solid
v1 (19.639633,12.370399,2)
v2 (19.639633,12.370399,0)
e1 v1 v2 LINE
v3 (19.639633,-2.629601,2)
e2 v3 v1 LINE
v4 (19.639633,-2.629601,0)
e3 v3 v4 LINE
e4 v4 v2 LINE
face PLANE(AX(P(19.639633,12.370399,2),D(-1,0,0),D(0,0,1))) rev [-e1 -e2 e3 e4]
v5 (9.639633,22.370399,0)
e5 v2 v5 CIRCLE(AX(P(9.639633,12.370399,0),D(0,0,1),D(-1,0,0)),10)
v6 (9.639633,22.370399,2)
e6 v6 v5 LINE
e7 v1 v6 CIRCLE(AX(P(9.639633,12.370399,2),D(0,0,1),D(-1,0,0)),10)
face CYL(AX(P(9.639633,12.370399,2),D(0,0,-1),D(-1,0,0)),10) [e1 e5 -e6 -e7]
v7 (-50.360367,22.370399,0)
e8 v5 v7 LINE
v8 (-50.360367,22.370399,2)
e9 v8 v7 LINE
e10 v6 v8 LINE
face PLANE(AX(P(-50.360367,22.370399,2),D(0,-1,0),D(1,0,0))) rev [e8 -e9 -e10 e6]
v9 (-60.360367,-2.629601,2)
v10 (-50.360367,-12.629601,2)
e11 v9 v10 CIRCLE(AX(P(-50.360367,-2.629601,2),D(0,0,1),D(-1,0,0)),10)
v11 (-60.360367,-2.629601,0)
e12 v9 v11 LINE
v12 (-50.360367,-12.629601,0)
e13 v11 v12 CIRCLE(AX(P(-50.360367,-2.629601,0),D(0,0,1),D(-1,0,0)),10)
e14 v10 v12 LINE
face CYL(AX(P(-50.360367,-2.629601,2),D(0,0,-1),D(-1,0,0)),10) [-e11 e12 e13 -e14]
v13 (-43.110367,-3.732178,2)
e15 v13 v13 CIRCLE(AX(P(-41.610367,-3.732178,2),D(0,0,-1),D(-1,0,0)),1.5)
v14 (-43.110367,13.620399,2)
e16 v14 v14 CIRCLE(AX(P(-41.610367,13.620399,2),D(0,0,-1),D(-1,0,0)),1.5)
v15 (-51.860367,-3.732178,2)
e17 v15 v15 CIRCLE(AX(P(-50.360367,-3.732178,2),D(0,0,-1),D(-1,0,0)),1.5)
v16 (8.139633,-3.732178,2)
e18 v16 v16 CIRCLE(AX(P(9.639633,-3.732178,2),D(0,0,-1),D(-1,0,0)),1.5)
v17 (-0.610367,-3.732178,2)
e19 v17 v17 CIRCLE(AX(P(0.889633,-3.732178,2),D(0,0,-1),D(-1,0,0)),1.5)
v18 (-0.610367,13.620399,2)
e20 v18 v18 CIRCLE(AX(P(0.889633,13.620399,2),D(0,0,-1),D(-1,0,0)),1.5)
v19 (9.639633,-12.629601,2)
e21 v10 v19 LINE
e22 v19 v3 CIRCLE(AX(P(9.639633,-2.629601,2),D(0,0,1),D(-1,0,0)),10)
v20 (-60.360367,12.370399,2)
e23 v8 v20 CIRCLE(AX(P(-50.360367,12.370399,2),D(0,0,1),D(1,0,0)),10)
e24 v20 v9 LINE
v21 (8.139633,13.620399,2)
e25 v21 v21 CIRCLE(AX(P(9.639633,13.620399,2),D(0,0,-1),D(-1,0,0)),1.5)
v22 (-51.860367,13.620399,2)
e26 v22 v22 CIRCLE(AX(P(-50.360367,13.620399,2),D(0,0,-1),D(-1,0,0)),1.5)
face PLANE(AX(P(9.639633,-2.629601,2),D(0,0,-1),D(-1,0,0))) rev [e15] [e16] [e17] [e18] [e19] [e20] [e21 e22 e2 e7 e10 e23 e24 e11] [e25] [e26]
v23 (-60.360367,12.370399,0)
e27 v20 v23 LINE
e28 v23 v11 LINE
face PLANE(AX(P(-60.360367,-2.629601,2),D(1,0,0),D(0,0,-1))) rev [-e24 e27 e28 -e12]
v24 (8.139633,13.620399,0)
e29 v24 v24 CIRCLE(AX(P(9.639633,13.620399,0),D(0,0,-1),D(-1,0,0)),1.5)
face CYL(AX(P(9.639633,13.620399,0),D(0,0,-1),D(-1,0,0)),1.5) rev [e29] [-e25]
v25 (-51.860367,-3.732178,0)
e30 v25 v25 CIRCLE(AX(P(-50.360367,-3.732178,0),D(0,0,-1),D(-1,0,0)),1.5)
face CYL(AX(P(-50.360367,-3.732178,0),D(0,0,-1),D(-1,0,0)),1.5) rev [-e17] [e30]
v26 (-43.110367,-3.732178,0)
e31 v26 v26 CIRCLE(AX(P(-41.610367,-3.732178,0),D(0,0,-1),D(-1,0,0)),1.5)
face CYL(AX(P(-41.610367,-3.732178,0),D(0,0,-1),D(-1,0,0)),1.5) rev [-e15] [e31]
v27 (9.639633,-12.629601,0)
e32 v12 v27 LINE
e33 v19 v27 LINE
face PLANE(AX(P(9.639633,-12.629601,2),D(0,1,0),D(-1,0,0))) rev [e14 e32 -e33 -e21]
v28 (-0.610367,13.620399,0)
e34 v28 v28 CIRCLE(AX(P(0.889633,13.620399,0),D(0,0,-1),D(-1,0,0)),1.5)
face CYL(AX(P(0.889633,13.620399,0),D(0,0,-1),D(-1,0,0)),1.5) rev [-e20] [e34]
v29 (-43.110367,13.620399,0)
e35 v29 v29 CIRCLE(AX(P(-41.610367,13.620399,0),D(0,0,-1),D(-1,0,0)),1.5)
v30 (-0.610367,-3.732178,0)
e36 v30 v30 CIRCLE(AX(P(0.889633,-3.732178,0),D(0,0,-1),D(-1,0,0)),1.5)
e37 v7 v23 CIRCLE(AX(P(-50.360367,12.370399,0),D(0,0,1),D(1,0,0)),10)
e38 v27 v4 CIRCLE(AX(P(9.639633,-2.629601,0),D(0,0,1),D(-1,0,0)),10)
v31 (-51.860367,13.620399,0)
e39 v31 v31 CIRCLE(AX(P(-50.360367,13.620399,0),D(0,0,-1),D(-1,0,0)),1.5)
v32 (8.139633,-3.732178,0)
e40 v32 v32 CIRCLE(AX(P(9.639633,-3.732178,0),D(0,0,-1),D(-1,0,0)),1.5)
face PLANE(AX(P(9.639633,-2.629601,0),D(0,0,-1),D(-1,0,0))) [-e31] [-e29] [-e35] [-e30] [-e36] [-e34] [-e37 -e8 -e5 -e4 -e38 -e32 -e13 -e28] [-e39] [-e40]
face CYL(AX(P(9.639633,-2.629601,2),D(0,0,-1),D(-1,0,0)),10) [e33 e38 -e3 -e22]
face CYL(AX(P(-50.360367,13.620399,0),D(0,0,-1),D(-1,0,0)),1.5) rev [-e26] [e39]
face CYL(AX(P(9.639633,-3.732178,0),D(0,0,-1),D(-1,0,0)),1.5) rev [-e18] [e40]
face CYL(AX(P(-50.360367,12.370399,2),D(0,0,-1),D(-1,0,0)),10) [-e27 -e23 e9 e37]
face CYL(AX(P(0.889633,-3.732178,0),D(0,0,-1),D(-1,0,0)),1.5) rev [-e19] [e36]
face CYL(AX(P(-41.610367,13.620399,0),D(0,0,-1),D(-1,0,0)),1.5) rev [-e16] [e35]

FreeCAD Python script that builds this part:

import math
import FreeCAD as App
import Part
import Sketcher
Q = App.Units.Quantity

doc = App.newDocument("Part")
body = doc.addObject("PartDesign::Body", "Body")

# Sketch on XY plane
sketch1 = body.newObject("Sketcher::SketchObject", "Sketch")
sketch1.AttachmentSupport = (doc.getObject("XY_Plane"), [""])
sketch1.MapMode = "FlatFace"
sketch1.addGeometry([
    Part.LineSegment(App.Vector(10, 22, 0), App.Vector(-50, 22, 0)),  # 0
    Part.ArcOfCircle(Part.Circle(App.Vector(-50, 12, 0), App.Vector(0, 0, 1), 10), math.radians(90), math.radians(180)),  # 1
    Part.LineSegment(App.Vector(-60, 12, 0), App.Vector(-60, -3, 0)),  # 2
    Part.ArcOfCircle(Part.Circle(App.Vector(-50, -3, 0), App.Vector(0, 0, 1), 10), math.radians(180), math.radians(270)),  # 3
    Part.LineSegment(App.Vector(-50, -13, 0), App.Vector(10, -13, 0)),  # 4
    Part.ArcOfCircle(Part.Circle(App.Vector(10, -3, 0), App.Vector(0, 0, 1), 10), math.radians(-90), math.radians(0)),  # 5
    Part.LineSegment(App.Vector(20, -3, 0), App.Vector(20, 12, 0)),  # 6
    Part.ArcOfCircle(Part.Circle(App.Vector(10, 12, 0), App.Vector(0, 0, 1), 10), math.radians(0), math.radians(90)),  # 7
], False)
sketch1.addConstraint([
    Sketcher.Constraint("Tangent", 0, 2, 1, 1),
    Sketcher.Constraint("Tangent", 1, 2, 2, 1),
    Sketcher.Constraint("Tangent", 2, 2, 3, 1),
    Sketcher.Constraint("Tangent", 3, 2, 4, 1),
    Sketcher.Constraint("Tangent", 4, 2, 5, 1),
    Sketcher.Constraint("Tangent", 5, 2, 6, 1),
    Sketcher.Constraint("Tangent", 6, 2, 7, 1),
    Sketcher.Constraint("Tangent", 7, 2, 0, 1),
    Sketcher.Constraint("Horizontal", 0),
    Sketcher.Constraint("Vertical", 2),
    Sketcher.Constraint("Horizontal", 4),
    Sketcher.Constraint("Vertical", 6),
    Sketcher.Constraint("Equal", 1, 3),
    Sketcher.Constraint("Equal", 3, 5),
    Sketcher.Constraint("Equal", 5, 7),
    Sketcher.Constraint("Radius", 1, Q("10 mm")),
    Sketcher.Constraint("DistanceX", 0, 2, 0, 1, Q("60 mm")),
    Sketcher.Constraint("DistanceY", 2, 2, 2, 1, Q("15 mm")),
    Sketcher.Constraint("DistanceY", -1, 1, 1, 3, Q("12.370399 mm")),
    Sketcher.Constraint("DistanceX", 1, 3, -1, 1, Q("50.360367 mm")),
])
pad1 = body.newObject("PartDesign::Pad", "Pad")
pad1.Profile = sketch1
pad1.Length = 2

# Sketch on XY plane
sketch2 = body.newObject("Sketcher::SketchObject", "Sketch001")
sketch2.AttachmentSupport = (doc.getObject("XY_Plane"), [""])
sketch2.MapMode = "FlatFace"
sketch2.addGeometry([
    Part.Circle(App.Vector(-41.6, 13.6, 0), App.Vector(0, 0, 1), 1.5),
    Part.Circle(App.Vector(-50.4, 13.6, 0), App.Vector(0, 0, 1), 1.5),
    Part.Circle(App.Vector(-41.6, -3.7, 0), App.Vector(0, 0, 1), 1.5),
    Part.Circle(App.Vector(-50.4, -3.7, 0), App.Vector(0, 0, 1), 1.5),
], False)
sketch2.addConstraint([
    Sketcher.Constraint("Equal", 0, 1),
    Sketcher.Constraint("Equal", 1, 2),
    Sketcher.Constraint("Equal", 2, 3),
    Sketcher.Constraint("Horizontal", 0, 3, 1, 3),
    Sketcher.Constraint("Horizontal", 2, 3, 3, 3),
    Sketcher.Constraint("Vertical", 0, 3, 2, 3),
    Sketcher.Constraint("Vertical", 1, 3, 3, 3),
    Sketcher.Constraint("Diameter", 0, Q("3 mm")),
    Sketcher.Constraint("DistanceX", 1, 3, 0, 3, Q("8.75 mm")),
    Sketcher.Constraint("DistanceY", -1, 1, 0, 3, Q("13.620399 mm")),
    Sketcher.Constraint("DistanceX", 0, 3, -1, 1, Q("41.610367 mm")),
    Sketcher.Constraint("DistanceY", 2, 3, -1, 1, Q("3.732178 mm")),
])
doc.recompute()
hole = body.newObject("PartDesign::Hole", "Hole")
hole.Profile = sketch2
hole.ThreadType = "None"
hole.Diameter = 3
hole.DepthType = "ThroughAll"
hole.Reversed = True

# Sketch on XY plane
sketch3 = body.newObject("Sketcher::SketchObject", "Sketch002")
sketch3.AttachmentSupport = (doc.getObject("XY_Plane"), [""])
sketch3.MapMode = "FlatFace"
sketch3.addGeometry([
    Part.Circle(App.Vector(9.6, 13.6, 0), App.Vector(0, 0, 1), 1.5),
    Part.Circle(App.Vector(0.9, 13.6, 0), App.Vector(0, 0, 1), 1.5),
    Part.Circle(App.Vector(0.9, -3.7, 0), App.Vector(0, 0, 1), 1.5),
    Part.Circle(App.Vector(9.6, -3.7, 0), App.Vector(0, 0, 1), 1.5),
], False)
sketch3.addConstraint([
    Sketcher.Constraint("Equal", 0, 1),
    Sketcher.Constraint("Equal", 1, 2),
    Sketcher.Constraint("Equal", 2, 3),
    Sketcher.Constraint("Horizontal", 0, 3, 1, 3),
    Sketcher.Constraint("Horizontal", 2, 3, 3, 3),
    Sketcher.Constraint("Vertical", 1, 3, 2, 3),
    Sketcher.Constraint("Vertical", 0, 3, 3, 3),
    Sketcher.Constraint("Diameter", 0, Q("3 mm")),
    Sketcher.Constraint("DistanceX", 1, 3, 0, 3, Q("8.75 mm")),
    Sketcher.Constraint("DistanceY", -1, 1, 0, 3, Q("13.620399 mm")),
    Sketcher.Constraint("DistanceX", -1, 1, 0, 3, Q("9.639633 mm")),
    Sketcher.Constraint("DistanceY", 2, 3, -1, 1, Q("3.732178 mm")),
])
doc.recompute()
hole2 = body.newObject("PartDesign::Hole", "Hole001")
hole2.Profile = sketch3
hole2.ThreadType = "None"
hole2.Diameter = 3
hole2.DepthType = "ThroughAll"
hole2.Reversed = True

doc.recompute()
